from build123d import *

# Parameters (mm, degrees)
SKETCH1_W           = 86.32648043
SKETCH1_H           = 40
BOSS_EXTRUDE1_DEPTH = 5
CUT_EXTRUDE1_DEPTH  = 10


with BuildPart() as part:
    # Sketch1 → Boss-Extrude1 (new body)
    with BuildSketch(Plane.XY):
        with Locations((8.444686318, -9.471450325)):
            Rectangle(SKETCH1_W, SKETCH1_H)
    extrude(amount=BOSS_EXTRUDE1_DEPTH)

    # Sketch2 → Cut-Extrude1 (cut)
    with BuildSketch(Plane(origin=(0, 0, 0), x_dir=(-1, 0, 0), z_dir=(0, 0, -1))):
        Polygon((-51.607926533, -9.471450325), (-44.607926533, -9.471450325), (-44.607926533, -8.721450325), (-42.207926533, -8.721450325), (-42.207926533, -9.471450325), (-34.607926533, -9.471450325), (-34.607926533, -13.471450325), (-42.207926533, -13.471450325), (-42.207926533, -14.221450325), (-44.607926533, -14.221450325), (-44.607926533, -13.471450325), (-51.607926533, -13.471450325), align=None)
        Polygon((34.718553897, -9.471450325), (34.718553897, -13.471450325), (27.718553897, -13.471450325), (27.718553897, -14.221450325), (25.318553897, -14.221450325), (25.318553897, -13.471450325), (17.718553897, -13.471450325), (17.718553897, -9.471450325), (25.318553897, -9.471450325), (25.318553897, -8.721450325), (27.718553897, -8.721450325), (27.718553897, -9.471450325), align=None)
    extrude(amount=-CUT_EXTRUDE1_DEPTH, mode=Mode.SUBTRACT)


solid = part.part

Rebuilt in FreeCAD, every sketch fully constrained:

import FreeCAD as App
import Part
import Sketcher

doc = App.newDocument("Part")
body = doc.addObject("PartDesign::Body", "Body")

# Sketch on XY plane
sketch1 = body.newObject("Sketcher::SketchObject", "Sketch")
sketch1.AttachmentSupport = (doc.getObject("XY_Plane"), [""])
sketch1.MapMode = "FlatFace"
sketch1.addGeometry([
    Part.LineSegment(App.Vector(-35, 11, 0), App.Vector(-35, -29, 0)),
    Part.LineSegment(App.Vector(-35, -29, 0), App.Vector(52, -29, 0)),
    Part.LineSegment(App.Vector(52, -29, 0), App.Vector(52, 11, 0)),
    Part.LineSegment(App.Vector(52, 11, 0), App.Vector(-35, 11, 0)),
], False)
sketch1.addConstraint([
    Sketcher.Constraint("Coincident", 0, 2, 1, 1),
    Sketcher.Constraint("Coincident", 1, 2, 2, 1),
    Sketcher.Constraint("Coincident", 2, 2, 3, 1),
    Sketcher.Constraint("Coincident", 3, 2, 0, 1),
    Sketcher.Constraint("Vertical", 0),
    Sketcher.Constraint("Horizontal", 1),
    Sketcher.Constraint("Vertical", 2),
    Sketcher.Constraint("Horizontal", 3),
    Sketcher.Constraint("DistanceY", 0, 2, 0, 1, 40.0),
    Sketcher.Constraint("DistanceX", 1, 1, 1, 2, 86.32648),
    Sketcher.Constraint("DistanceY", 0, 2, -1, 1, 29.47145),
    Sketcher.Constraint("DistanceX", 0, 2, -1, 1, 34.718554),
])
pad1 = body.newObject("PartDesign::Pad", "Pad")
pad1.Profile = sketch1
pad1.Length = 5

# Sketch on XY plane
sketch2 = body.newObject("Sketcher::SketchObject", "Sketch001")
sketch2.AttachmentSupport = (doc.getObject("XY_Plane"), [""])
sketch2.MapMode = "FlatFace"
sketch2.addGeometry([
    Part.LineSegment(App.Vector(44.6, -9.5, 0), App.Vector(51.6, -9.5, 0)),  # 0
    Part.LineSegment(App.Vector(51.6, -9.5, 0), App.Vector(51.6, -13.5, 0)),  # 1
    Part.LineSegment(App.Vector(51.6, -13.5, 0), App.Vector(44.6, -13.5, 0)),  # 2
    Part.LineSegment(App.Vector(44.6, -13.5, 0), App.Vector(44.6, -14.2, 0)),  # 3
    Part.LineSegment(App.Vector(44.6, -14.2, 0), App.Vector(42.2, -14.2, 0)),  # 4
    Part.LineSegment(App.Vector(42.2, -14.2, 0), App.Vector(42.2, -13.5, 0)),  # 5
    Part.LineSegment(App.Vector(42.2, -13.5, 0), App.Vector(34.6, -13.5, 0)),  # 6
    Part.LineSegment(App.Vector(34.6, -13.5, 0), App.Vector(34.6, -9.5, 0)),  # 7
    Part.LineSegment(App.Vector(34.6, -9.5, 0), App.Vector(42.2, -9.5, 0)),  # 8
    Part.LineSegment(App.Vector(42.2, -9.5, 0), App.Vector(42.2, -8.7, 0)),  # 9
    Part.LineSegment(App.Vector(42.2, -8.7, 0), App.Vector(44.6, -8.7, 0)),  # 10
    Part.LineSegment(App.Vector(44.6, -8.7, 0), App.Vector(44.6, -9.5, 0)),  # 11
    Part.LineSegment(App.Vector(-34.7, -13.5, 0), App.Vector(-34.7, -9.5, 0)),  # 12
    Part.LineSegment(App.Vector(-34.7, -9.5, 0), App.Vector(-27.7, -9.5, 0)),  # 13
    Part.LineSegment(App.Vector(-27.7, -9.5, 0), App.Vector(-27.7, -8.7, 0)),  # 14
    Part.LineSegment(App.Vector(-27.7, -8.7, 0), App.Vector(-25.3, -8.7, 0)),  # 15
    Part.LineSegment(App.Vector(-25.3, -8.7, 0), App.Vector(-25.3, -9.5, 0)),  # 16
    Part.LineSegment(App.Vector(-25.3, -9.5, 0), App.Vector(-17.7, -9.5, 0)),  # 17
    Part.LineSegment(App.Vector(-17.7, -9.5, 0), App.Vector(-17.7, -13.5, 0)),  # 18
    Part.LineSegment(App.Vector(-17.7, -13.5, 0), App.Vector(-25.3, -13.5, 0)),  # 19
    Part.LineSegment(App.Vector(-25.3, -13.5, 0), App.Vector(-25.3, -14.2, 0)),  # 20
    Part.LineSegment(App.Vector(-25.3, -14.2, 0), App.Vector(-27.7, -14.2, 0)),  # 21
    Part.LineSegment(App.Vector(-27.7, -14.2, 0), App.Vector(-27.7, -13.5, 0)),  # 22
    Part.LineSegment(App.Vector(-27.7, -13.5, 0), App.Vector(-34.7, -13.5, 0)),  # 23
], False)
sketch2.addConstraint([
    Sketcher.Constraint("Coincident", 0, 2, 1, 1),
    Sketcher.Constraint("Coincident", 1, 2, 2, 1),
    Sketcher.Constraint("Coincident", 2, 2, 3, 1),
    Sketcher.Constraint("Coincident", 3, 2, 4, 1),
    Sketcher.Constraint("Coincident", 4, 2, 5, 1),
    Sketcher.Constraint("Coincident", 5, 2, 6, 1),
    Sketcher.Constraint("Coincident", 6, 2, 7, 1),
    Sketcher.Constraint("Coincident", 7, 2, 8, 1),
    Sketcher.Constraint("Coincident", 8, 2, 9, 1),
    Sketcher.Constraint("Coincident", 9, 2, 10, 1),
    Sketcher.Constraint("Coincident", 10, 2, 11, 1),
    Sketcher.Constraint("Coincident", 11, 2, 0, 1),
    Sketcher.Constraint("Coincident", 12, 2, 13, 1),
    Sketcher.Constraint("Coincident", 13, 2, 14, 1),
    Sketcher.Constraint("Coincident", 14, 2, 15, 1),
    Sketcher.Constraint("Coincident", 15, 2, 16, 1),
    Sketcher.Constraint("Coincident", 16, 2, 17, 1),
    Sketcher.Constraint("Coincident", 17, 2, 18, 1),
    Sketcher.Constraint("Coincident", 18, 2, 19, 1),
    Sketcher.Constraint("Coincident", 19, 2, 20, 1),
    Sketcher.Constraint("Coincident", 20, 2, 21, 1),
    Sketcher.Constraint("Coincident", 21, 2, 22, 1),
    Sketcher.Constraint("Coincident", 22, 2, 23, 1),
    Sketcher.Constraint("Coincident", 23, 2, 12, 1),
    Sketcher.Constraint("Horizontal", 0),
    Sketcher.Constraint("Vertical", 1),
    Sketcher.Constraint("Horizontal", 2),
    Sketcher.Constraint("Vertical", 3),
    Sketcher.Constraint("Horizontal", 4),
    Sketcher.Constraint("Vertical", 5),
    Sketcher.Constraint("Horizontal", 6),
    Sketcher.Constraint("Vertical", 7),
    Sketcher.Constraint("Horizontal", 8),
    Sketcher.Constraint("Vertical", 9),
    Sketcher.Constraint("Horizontal", 10),
    Sketcher.Constraint("Vertical", 11),
    Sketcher.Constraint("Vertical", 12),
    Sketcher.Constraint("Horizontal", 13),
    Sketcher.Constraint("Vertical", 14),
    Sketcher.Constraint("Horizontal", 15),
    Sketcher.Constraint("Vertical", 16),
    Sketcher.Constraint("Horizontal", 17),
    Sketcher.Constraint("Vertical", 18),
    Sketcher.Constraint("Horizontal", 19),
    Sketcher.Constraint("Vertical", 20),
    Sketcher.Constraint("Horizontal", 21),
    Sketcher.Constraint("Vertical", 22),
    Sketcher.Constraint("Horizontal", 23),
    Sketcher.Constraint("Horizontal", 2, 2, 5, 2),
    Sketcher.Constraint("Horizontal", 0, 2, 7, 2),
    Sketcher.Constraint("Horizontal", 11, 2, 12, 2),
    Sketcher.Constraint("Horizontal", 10, 2, 14, 2),
    Sketcher.Constraint("Horizontal", 13, 2, 16, 2),
    Sketcher.Constraint("Horizontal", 6, 2, 18, 2),
    Sketcher.Constraint("Horizontal", 4, 2, 20, 2),
    Sketcher.Constraint("Horizontal", 19, 2, 22, 2),
    Sketcher.Constraint("Vertical", 5, 2, 8, 2),
    Sketcher.Constraint("Vertical", 3, 2, 10, 2),
    Sketcher.Constraint("Vertical", 16, 2, 19, 2),
    Sketcher.Constraint("Vertical", 14, 2, 21, 2),
    Sketcher.Constraint("Equal", 2, 13),
    Sketcher.Constraint("Equal", 10, 15),
    Sketcher.Constraint("Equal", 8, 17),
    Sketcher.Constraint("Equal", 5, 9),
    Sketcher.Constraint("DistanceX", 0, 1, 0, 2, 7.0),
    Sketcher.Constraint("DistanceY", 1, 2, 1, 1, 4.0),
    Sketcher.Constraint("DistanceX", 4, 2, 4, 1, 2.4),
    Sketcher.Constraint("DistanceX", 6, 2, 6, 1, 7.6),
    Sketcher.Constraint("DistanceY", 3, 2, 3, 1, 0.75),
    Sketcher.Constraint("DistanceY", 0, 2, -1, 1, 9.47145),
    Sketcher.Constraint("DistanceX", 12, 2, 7, 2, 69.32648),
    Sketcher.Constraint("DistanceX", -1, 1, 0, 2, 51.607927),
])
pocket1 = body.newObject("PartDesign::Pocket", "Pocket")
pocket1.Profile = sketch2
pocket1.Length = 10
pocket1.Reversed = True

doc.recompute()
